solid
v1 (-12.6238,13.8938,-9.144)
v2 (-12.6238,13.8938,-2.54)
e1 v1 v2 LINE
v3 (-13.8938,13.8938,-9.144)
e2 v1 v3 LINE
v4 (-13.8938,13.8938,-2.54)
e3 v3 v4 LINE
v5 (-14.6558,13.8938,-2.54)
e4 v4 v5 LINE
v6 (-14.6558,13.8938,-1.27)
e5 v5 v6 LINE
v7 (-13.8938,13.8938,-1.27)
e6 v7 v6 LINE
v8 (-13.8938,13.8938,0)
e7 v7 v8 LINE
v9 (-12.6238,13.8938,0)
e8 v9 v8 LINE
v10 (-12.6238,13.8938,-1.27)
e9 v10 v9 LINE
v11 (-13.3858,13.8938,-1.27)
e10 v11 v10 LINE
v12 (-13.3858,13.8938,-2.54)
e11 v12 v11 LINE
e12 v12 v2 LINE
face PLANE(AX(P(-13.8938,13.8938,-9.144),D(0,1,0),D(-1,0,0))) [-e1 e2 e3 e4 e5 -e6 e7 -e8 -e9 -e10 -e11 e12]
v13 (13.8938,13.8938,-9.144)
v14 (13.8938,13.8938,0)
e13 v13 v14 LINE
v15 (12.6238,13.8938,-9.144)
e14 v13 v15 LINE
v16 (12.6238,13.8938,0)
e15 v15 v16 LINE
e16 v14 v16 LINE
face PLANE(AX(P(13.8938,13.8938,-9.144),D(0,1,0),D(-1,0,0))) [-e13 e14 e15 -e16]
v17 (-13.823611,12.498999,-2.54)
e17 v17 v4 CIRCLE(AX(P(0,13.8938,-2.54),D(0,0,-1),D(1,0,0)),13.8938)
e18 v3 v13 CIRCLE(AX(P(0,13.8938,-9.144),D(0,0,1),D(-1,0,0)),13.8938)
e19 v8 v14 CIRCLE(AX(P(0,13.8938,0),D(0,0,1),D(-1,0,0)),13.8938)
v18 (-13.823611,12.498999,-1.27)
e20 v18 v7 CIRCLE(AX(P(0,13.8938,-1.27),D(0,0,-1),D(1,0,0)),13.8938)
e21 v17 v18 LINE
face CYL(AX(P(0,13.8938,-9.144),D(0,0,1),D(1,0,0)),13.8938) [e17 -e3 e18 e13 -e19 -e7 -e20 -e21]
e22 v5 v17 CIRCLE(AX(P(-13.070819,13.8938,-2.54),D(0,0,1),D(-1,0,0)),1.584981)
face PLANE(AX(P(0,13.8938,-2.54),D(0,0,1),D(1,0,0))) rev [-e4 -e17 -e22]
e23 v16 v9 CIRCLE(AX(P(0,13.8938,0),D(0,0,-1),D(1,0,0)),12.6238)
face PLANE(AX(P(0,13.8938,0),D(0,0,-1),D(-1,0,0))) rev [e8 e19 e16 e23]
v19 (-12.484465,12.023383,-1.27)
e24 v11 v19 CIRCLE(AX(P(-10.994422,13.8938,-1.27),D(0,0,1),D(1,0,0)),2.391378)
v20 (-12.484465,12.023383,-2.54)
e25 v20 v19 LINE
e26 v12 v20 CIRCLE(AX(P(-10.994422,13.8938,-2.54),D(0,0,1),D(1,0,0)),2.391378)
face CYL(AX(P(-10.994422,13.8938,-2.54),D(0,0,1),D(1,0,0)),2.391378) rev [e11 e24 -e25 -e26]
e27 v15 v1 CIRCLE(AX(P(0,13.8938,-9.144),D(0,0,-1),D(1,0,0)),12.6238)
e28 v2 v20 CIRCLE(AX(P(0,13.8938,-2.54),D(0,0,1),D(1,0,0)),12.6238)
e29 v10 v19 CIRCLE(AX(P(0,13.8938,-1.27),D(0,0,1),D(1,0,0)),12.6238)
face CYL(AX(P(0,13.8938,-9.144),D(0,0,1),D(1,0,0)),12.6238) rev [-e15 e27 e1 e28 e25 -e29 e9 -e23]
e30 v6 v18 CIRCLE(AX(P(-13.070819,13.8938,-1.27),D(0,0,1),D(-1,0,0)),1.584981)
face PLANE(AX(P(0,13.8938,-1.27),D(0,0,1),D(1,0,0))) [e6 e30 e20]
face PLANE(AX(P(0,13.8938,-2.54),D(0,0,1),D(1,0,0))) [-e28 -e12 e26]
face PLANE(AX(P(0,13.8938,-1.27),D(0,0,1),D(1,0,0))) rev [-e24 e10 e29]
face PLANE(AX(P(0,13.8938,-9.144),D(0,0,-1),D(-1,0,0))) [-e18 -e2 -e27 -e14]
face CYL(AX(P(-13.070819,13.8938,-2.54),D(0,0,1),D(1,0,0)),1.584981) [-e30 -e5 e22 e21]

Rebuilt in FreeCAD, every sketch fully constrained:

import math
import FreeCAD as App
import Part
import Sketcher
Q = App.Units.Quantity

doc = App.newDocument("Part")
body = doc.addObject("PartDesign::Body", "Body")

# Sketch on XY plane
sketch1 = body.newObject("Sketcher::SketchObject", "Sketch")
sketch1.AttachmentSupport = (doc.getObject("XY_Plane"), [""])
sketch1.MapMode = "FlatFace"
sketch1.addGeometry([
    Part.LineSegment(App.Vector(13.9, 13.9, 0), App.Vector(12.6, 13.9, 0)),
    Part.ArcOfCircle(Part.Circle(App.Vector(0, 13.9, 0), App.Vector(0, 0, 1), 12.6), math.radians(180), math.radians(360)),
    Part.LineSegment(App.Vector(-12.6, 13.9, 0), App.Vector(-13.9, 13.9, 0)),
    Part.ArcOfCircle(Part.Circle(App.Vector(0, 13.9, 0), App.Vector(0, 0, 1), 13.9), math.radians(180), math.radians(360)),
], False)
sketch1.addConstraint([
    Sketcher.Constraint("Coincident", 0, 2, 1, 2),
    Sketcher.Constraint("Coincident", 1, 1, 2, 1),
    Sketcher.Constraint("Coincident", 2, 2, 3, 1),
    Sketcher.Constraint("Coincident", 3, 2, 0, 1),
    Sketcher.Constraint("Horizontal", 0),
    Sketcher.Constraint("Horizontal", 2),
    Sketcher.Constraint("Coincident", 3, 3, 1, 3),
    Sketcher.Constraint("Symmetric", 0, 2, 1, 1, -2),
    Sketcher.Constraint("Horizontal", 3, 3, 0, 2),
    Sketcher.Constraint("Radius", 1, Q("0.497 in")),
    Sketcher.Constraint("Radius", 3, Q("0.547 in")),
    Sketcher.Constraint("DistanceY", -1, 1, 1, 3, Q("0.547 in")),
])
pad1 = body.newObject("PartDesign::Pad", "Pad")
pad1.Profile = sketch1
pad1.Length = Q("0.36 in")
pad1.Reversed = True

# Sketch on XY plane
sketch2 = body.newObject("Sketcher::SketchObject", "Sketch001")
sketch2.AttachmentSupport = (doc.getObject("XY_Plane"), [""])
sketch2.MapMode = "FlatFace"
sketch2.AttachmentOffset = App.Placement(App.Vector(0, 0, -0.05 * 25.4), App.Rotation())
sketch2.addGeometry([
    Part.LineSegment(App.Vector(-13.9, 13.9, 0), App.Vector(-14.7, 13.9, 0)),
    Part.ArcOfCircle(Part.Circle(App.Vector(-13.1, 13.9, 0), App.Vector(0, 0, 1), 1.6), math.radians(180), math.radians(242)),
    Part.ArcOfCircle(Part.Circle(App.Vector(0, 13.9, 0), App.Vector(0, 0, 1), 13.9), math.radians(-180), math.radians(-174.24)),
], False)
sketch2.addConstraint([
    Sketcher.Constraint("Coincident", 0, 2, 1, 1),
    Sketcher.Constraint("Coincident", 1, 2, 2, 2),
    Sketcher.Constraint("Coincident", 2, 1, 0, 1),
    Sketcher.Constraint("Horizontal", 0),
    Sketcher.Constraint("PointOnObject", 2, 3, -2),
    Sketcher.Constraint("Horizontal", 1, 3, 2, 3),
    Sketcher.Constraint("Horizontal", 2, 3, 0, 2),
    Sketcher.Constraint("Radius", 2, Q("0.547 in")),
    Sketcher.Constraint("DistanceX", 0, 2, 0, 1, Q("0.03 in")),
    Sketcher.Constraint("DistanceY", -1, 1, 1, 3, Q("0.547 in")),
    Sketcher.Constraint("Radius", 1, 1.584981),
])
pad2 = body.newObject("PartDesign::Pad", "Pad001")
pad2.Profile = sketch2
pad2.Length = Q("0.05 in")
pad2.Reversed = True

# Sketch on XY plane
sketch3 = body.newObject("Sketcher::SketchObject", "Sketch002")
sketch3.AttachmentSupport = (doc.getObject("XY_Plane"), [""])
sketch3.MapMode = "FlatFace"
sketch3.AttachmentOffset = App.Placement(App.Vector(0, 0, -0.05 * 25.4), App.Rotation())
sketch3.addGeometry([
    Part.LineSegment(App.Vector(-12.6, 13.9, 0), App.Vector(-13.4, 13.9, 0)),
    Part.ArcOfCircle(Part.Circle(App.Vector(-11, 13.9, 0), App.Vector(0, 0, 1), 2.4), math.radians(180), math.radians(231)),
    Part.ArcOfCircle(Part.Circle(App.Vector(0, 13.9, 0), App.Vector(0, 0, 1), 12.6), math.radians(180), math.radians(188.52)),
], False)
sketch3.addConstraint([
    Sketcher.Constraint("Coincident", 0, 2, 1, 1),
    Sketcher.Constraint("Coincident", 1, 2, 2, 2),
    Sketcher.Constraint("Coincident", 2, 1, 0, 1),
    Sketcher.Constraint("Horizontal", 0),
    Sketcher.Constraint("PointOnObject", 2, 3, -2),
    Sketcher.Constraint("Horizontal", 1, 3, 2, 3),
    Sketcher.Constraint("Horizontal", 2, 3, 0, 2),
    Sketcher.Constraint("Radius", 2, Q("0.497 in")),
    Sketcher.Constraint("DistanceX", 0, 2, 0, 1, Q("0.03 in")),
    Sketcher.Constraint("DistanceY", -1, 1, 1, 3, Q("0.547 in")),
    Sketcher.Constraint("Radius", 1, 2.391378),
])
pocket1 = body.newObject("PartDesign::Pocket", "Pocket")
pocket1.Profile = sketch3
pocket1.Length = Q("0.05 in")

doc.recompute()
